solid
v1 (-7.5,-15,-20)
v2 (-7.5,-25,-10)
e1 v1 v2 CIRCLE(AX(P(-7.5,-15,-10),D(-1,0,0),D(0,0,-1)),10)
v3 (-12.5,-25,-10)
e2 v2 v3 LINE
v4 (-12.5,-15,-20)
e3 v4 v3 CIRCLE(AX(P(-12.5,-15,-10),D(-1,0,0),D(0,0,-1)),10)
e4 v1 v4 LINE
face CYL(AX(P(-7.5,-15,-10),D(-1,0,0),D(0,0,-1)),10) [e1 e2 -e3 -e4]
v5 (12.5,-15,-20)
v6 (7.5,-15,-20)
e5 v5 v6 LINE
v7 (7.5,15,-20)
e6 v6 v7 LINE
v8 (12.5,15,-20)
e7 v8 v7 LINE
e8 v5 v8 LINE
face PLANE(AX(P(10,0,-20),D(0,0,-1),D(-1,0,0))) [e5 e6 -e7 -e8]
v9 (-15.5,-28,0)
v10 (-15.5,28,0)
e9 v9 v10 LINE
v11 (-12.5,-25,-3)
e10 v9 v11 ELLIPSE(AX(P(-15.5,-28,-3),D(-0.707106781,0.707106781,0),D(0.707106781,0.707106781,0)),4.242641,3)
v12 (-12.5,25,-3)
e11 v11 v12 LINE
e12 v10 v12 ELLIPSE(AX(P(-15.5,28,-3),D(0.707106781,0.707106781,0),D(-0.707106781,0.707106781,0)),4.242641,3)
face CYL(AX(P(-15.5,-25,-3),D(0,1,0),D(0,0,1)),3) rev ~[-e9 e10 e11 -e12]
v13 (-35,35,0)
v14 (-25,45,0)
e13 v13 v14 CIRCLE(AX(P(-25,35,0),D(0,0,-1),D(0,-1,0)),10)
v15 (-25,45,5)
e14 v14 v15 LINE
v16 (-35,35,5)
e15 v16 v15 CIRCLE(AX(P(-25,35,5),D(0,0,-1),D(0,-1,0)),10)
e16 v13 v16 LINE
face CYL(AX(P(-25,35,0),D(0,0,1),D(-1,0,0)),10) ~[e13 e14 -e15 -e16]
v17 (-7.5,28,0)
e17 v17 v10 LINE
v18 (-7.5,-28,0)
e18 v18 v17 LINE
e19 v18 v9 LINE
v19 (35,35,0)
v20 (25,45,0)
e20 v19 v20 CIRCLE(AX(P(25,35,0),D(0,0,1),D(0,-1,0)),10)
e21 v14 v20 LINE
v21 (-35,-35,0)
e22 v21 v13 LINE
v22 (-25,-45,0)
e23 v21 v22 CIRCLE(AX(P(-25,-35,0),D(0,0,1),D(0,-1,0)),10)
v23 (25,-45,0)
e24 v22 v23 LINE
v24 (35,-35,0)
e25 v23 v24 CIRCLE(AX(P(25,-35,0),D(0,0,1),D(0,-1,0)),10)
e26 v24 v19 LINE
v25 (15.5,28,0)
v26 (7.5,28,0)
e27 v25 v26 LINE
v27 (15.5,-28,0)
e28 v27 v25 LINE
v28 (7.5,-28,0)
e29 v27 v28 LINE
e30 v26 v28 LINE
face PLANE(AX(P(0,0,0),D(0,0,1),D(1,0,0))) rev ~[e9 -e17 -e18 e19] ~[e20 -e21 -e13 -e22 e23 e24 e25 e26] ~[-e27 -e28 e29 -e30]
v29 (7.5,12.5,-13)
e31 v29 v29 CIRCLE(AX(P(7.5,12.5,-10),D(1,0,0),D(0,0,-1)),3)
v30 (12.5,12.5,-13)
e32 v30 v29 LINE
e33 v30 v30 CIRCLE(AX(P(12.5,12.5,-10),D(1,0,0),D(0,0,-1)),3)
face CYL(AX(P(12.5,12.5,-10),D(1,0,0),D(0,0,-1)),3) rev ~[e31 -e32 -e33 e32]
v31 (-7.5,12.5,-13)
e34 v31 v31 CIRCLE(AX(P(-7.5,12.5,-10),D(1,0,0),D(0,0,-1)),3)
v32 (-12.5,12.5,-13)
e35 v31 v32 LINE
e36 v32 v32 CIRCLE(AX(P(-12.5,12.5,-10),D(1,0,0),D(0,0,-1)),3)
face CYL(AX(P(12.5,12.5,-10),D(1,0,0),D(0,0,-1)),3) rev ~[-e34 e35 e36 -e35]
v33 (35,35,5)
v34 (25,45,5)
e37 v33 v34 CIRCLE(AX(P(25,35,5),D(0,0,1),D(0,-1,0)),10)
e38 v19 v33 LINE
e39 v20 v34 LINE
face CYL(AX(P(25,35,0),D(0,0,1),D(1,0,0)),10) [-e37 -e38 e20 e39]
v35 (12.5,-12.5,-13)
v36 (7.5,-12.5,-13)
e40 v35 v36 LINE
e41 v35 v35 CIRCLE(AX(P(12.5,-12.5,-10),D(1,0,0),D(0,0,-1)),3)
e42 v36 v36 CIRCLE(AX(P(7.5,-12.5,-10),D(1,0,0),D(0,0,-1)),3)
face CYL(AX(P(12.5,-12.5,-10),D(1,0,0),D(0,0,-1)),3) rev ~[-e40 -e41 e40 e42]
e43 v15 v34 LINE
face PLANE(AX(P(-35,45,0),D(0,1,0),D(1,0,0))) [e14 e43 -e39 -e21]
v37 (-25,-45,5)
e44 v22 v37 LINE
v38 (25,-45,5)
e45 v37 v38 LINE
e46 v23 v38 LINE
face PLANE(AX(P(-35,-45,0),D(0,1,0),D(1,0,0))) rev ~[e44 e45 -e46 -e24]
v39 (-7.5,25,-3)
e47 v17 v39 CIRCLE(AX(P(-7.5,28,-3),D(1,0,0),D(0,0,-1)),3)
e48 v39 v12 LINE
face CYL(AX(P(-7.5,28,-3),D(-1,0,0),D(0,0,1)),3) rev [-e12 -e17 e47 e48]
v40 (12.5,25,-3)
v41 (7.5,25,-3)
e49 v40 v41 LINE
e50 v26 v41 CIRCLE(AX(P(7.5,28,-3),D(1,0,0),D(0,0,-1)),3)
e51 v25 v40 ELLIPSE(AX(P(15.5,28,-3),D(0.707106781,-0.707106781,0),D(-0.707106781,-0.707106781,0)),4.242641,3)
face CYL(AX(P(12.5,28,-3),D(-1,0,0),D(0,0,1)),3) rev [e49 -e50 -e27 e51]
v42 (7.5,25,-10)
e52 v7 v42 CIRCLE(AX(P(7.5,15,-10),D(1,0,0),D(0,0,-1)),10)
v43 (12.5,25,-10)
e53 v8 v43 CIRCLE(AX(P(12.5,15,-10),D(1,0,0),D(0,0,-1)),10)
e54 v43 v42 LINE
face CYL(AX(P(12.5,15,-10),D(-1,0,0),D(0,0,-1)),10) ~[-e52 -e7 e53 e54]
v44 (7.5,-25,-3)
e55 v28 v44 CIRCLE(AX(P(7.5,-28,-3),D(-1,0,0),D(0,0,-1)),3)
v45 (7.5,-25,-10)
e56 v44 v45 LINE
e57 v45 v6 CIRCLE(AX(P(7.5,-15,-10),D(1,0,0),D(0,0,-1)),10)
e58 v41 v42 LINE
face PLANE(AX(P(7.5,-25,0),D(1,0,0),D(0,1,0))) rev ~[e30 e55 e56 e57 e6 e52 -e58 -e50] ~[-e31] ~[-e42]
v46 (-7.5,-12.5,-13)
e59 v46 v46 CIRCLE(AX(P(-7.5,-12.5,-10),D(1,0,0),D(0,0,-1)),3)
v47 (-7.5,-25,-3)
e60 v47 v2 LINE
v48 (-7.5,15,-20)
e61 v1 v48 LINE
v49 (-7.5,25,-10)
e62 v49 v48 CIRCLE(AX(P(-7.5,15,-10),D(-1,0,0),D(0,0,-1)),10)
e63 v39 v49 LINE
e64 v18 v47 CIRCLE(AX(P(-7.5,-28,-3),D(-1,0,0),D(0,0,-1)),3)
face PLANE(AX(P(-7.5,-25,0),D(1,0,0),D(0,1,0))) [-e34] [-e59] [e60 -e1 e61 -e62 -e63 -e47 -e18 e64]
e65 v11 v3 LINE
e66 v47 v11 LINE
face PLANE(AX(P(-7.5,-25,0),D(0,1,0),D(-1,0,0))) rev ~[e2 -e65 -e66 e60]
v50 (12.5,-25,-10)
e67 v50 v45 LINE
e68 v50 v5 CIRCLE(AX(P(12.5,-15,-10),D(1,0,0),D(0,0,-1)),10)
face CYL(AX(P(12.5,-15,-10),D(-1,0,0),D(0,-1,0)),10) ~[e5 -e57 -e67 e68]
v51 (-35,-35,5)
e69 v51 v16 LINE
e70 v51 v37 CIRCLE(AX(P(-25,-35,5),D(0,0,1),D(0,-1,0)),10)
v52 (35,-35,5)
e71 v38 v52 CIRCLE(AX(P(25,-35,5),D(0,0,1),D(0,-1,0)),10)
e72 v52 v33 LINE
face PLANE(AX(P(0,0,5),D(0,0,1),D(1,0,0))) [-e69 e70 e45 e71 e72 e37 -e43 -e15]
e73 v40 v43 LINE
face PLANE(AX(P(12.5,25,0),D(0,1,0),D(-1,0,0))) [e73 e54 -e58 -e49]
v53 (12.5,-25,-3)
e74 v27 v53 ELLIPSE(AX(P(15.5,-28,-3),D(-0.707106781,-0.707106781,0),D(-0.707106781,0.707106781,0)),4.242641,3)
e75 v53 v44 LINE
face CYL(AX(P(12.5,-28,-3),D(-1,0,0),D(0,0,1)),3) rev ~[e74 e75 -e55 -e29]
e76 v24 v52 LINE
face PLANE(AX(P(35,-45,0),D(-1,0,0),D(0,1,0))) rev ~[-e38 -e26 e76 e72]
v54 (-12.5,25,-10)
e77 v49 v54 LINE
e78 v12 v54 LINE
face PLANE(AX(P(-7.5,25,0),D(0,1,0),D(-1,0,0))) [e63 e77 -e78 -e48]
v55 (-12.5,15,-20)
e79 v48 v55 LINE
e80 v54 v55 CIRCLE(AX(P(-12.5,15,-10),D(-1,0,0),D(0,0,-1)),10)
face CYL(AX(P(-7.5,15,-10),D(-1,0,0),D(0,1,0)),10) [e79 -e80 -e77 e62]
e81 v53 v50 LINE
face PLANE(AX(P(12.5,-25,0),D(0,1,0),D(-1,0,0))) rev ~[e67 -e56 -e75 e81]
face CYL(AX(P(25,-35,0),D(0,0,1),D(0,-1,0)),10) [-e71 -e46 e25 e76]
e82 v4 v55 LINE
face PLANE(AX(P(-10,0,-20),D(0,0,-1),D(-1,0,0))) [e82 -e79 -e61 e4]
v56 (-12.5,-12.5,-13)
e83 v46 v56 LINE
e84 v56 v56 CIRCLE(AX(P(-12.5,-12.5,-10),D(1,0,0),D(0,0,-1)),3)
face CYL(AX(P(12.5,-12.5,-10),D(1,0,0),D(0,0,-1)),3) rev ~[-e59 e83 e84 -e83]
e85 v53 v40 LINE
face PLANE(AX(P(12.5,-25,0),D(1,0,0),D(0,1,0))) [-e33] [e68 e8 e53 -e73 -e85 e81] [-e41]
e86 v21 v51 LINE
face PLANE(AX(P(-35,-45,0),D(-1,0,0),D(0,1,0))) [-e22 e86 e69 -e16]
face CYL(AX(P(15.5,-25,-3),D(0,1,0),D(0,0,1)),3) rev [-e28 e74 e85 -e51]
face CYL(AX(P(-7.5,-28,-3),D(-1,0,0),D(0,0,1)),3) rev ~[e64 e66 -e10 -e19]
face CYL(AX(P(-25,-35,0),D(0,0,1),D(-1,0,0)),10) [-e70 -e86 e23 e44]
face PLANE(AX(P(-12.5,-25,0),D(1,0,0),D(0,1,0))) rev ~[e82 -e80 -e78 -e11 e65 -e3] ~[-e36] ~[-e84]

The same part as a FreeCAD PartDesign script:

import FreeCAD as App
import Part
import Sketcher
from FreeCAD import Vector


def edges_at(feature, points):
    """Names of the edges that pass closest to the given points."""
    edges = feature.Shape.Edges
    near = lambda p: min(range(len(edges)), key=lambda i: edges[i].distToShape(Part.Vertex(*p))[0])
    return sorted({f"Edge{near(p) + 1}" for p in points})

doc = App.newDocument("Part")
body = doc.addObject("PartDesign::Body", "Body")

# Sketch on XY plane
sketch1 = body.newObject("Sketcher::SketchObject", "Sketch")
sketch1.AttachmentSupport = (doc.getObject("XY_Plane"), [""])
sketch1.MapMode = "FlatFace"
sketch1.addGeometry([
    Part.LineSegment(Vector(-35, 45, 0), Vector(-35, -45, 0)),
    Part.LineSegment(Vector(-35, -45, 0), Vector(35, -45, 0)),
    Part.LineSegment(Vector(35, -45, 0), Vector(35, 45, 0)),
    Part.LineSegment(Vector(35, 45, 0), Vector(-35, 45, 0)),
], False)
sketch1.addConstraint([
    Sketcher.Constraint("Coincident", 0, 2, 1, 1),
    Sketcher.Constraint("Coincident", 1, 2, 2, 1),
    Sketcher.Constraint("Coincident", 2, 2, 3, 1),
    Sketcher.Constraint("Coincident", 3, 2, 0, 1),
    Sketcher.Constraint("Vertical", 0),
    Sketcher.Constraint("Horizontal", 1),
    Sketcher.Constraint("Vertical", 2),
    Sketcher.Constraint("Horizontal", 3),
    Sketcher.Constraint("Symmetric", 0, 2, 2, 2, -1, 1),
    Sketcher.Constraint("DistanceX", 1, 1, 1, 2, 70.0),
    Sketcher.Constraint("DistanceY", 0, 2, 0, 1, 90.0),
])
pad1 = body.newObject("PartDesign::Pad", "Pad")
pad1.Profile = sketch1
pad1.Length = 5

# Sketch on XY plane
sketch2 = body.newObject("Sketcher::SketchObject", "Sketch001")
sketch2.AttachmentSupport = (doc.getObject("XY_Plane"), [""])
sketch2.MapMode = "FlatFace"
sketch2.addGeometry([
    Part.LineSegment(Vector(-7.5, 25, 0), Vector(-7.5, -25, 0)),  # 0
    Part.LineSegment(Vector(-7.5, -25, 0), Vector(-12.5, -25, 0)),  # 1
    Part.LineSegment(Vector(-12.5, -25, 0), Vector(-12.5, 25, 0)),  # 2
    Part.LineSegment(Vector(-12.5, 25, 0), Vector(-7.5, 25, 0)),  # 3
    Part.LineSegment(Vector(12.5, 25, 0), Vector(12.5, -25, 0)),  # 4
    Part.LineSegment(Vector(12.5, -25, 0), Vector(7.5, -25, 0)),  # 5
    Part.LineSegment(Vector(7.5, -25, 0), Vector(7.5, 25, 0)),  # 6
    Part.LineSegment(Vector(7.5, 25, 0), Vector(12.5, 25, 0)),  # 7
], False)
sketch2.addConstraint([
    Sketcher.Constraint("Coincident", 0, 2, 1, 1),
    Sketcher.Constraint("Coincident", 1, 2, 2, 1),
    Sketcher.Constraint("Coincident", 2, 2, 3, 1),
    Sketcher.Constraint("Coincident", 3, 2, 0, 1),
    Sketcher.Constraint("Coincident", 4, 2, 5, 1),
    Sketcher.Constraint("Coincident", 5, 2, 6, 1),
    Sketcher.Constraint("Coincident", 6, 2, 7, 1),
    Sketcher.Constraint("Coincident", 7, 2, 4, 1),
    Sketcher.Constraint("Vertical", 0),
    Sketcher.Constraint("Horizontal", 1),
    Sketcher.Constraint("Vertical", 2),
    Sketcher.Constraint("Horizontal", 3),
    Sketcher.Constraint("Vertical", 4),
    Sketcher.Constraint("Horizontal", 5),
    Sketcher.Constraint("Vertical", 6),
    Sketcher.Constraint("Horizontal", 7),
    Sketcher.Constraint("Symmetric", 2, 2, 4, 2, -1, 1),
    Sketcher.Constraint("Symmetric", 0, 2, 6, 2, -1, 1),
    Sketcher.Constraint("Horizontal", 1, 2, 4, 2),
    Sketcher.Constraint("DistanceX", 1, 2, 1, 1, 5.0),
    Sketcher.Constraint("DistanceY", 0, 2, 0, 1, 50.0),
    Sketcher.Constraint("DistanceX", 0, 2, 4, 2, 20.0),
])
pad2 = body.newObject("PartDesign::Pad", "Pad001")
pad2.Profile = sketch2
pad2.Length = 20
pad2.Reversed = True

# Sketch on YZ plane
sketch3 = body.newObject("Sketcher::SketchObject", "Sketch002")
sketch3.AttachmentSupport = (doc.getObject("YZ_Plane"), [""])
sketch3.MapMode = "FlatFace"
sketch3.AttachmentOffset = App.Placement(Vector(0, 0, 12.5), App.Rotation())
sketch3.addGeometry([
    Part.Circle(Vector(12.5, -10, 0), Vector(0, 0, 1), 3),
    Part.Circle(Vector(-12.5, -10, 0), Vector(0, 0, 1), 3),
], False)
sketch3.addConstraint([
    Sketcher.Constraint("Equal", 0, 1),
    Sketcher.Constraint("Symmetric", 0, 3, 1, 3, -2),
    Sketcher.Constraint("Diameter", 0, 6.0),
    Sketcher.Constraint("DistanceY", 0, 3, -1, 1, 10.0),
    Sketcher.Constraint("DistanceX", 1, 3, 0, 3, 25.0),
])
pocket1 = body.newObject("PartDesign::Pocket", "Pocket")
pocket1.Profile = sketch3
pocket1.Type = "ThroughAll"
doc.recompute()

fillet = body.newObject("PartDesign::Fillet", "Fillet")
fillet.Base = (pocket1, edges_at(pocket1, [
    (10, 25, 0),
    (12.5, 0, 0),
    (10, -25, 0),
    (-12.5, 0, 0),
    (-10, 25, 0),
    (-10, -25, 0),
]))
fillet.Radius = 3
doc.recompute()

fillet2 = body.newObject("PartDesign::Fillet", "Fillet001")
fillet2.Base = (fillet, edges_at(fillet, [
    (10, 25, -20),
    (10, -25, -20),
    (-10, 25, -20),
    (-10, -25, -20),
]))
fillet2.Radius = 10
doc.recompute()

fillet3 = body.newObject("PartDesign::Fillet", "Fillet002")
fillet3.Base = (fillet2, edges_at(fillet2, [
    (35, -45, 2.5),
    (-35, -45, 2.5),
    (-35, 45, 2.5),
    (35, 45, 2.5),
]))
fillet3.Radius = 10

doc.recompute()
